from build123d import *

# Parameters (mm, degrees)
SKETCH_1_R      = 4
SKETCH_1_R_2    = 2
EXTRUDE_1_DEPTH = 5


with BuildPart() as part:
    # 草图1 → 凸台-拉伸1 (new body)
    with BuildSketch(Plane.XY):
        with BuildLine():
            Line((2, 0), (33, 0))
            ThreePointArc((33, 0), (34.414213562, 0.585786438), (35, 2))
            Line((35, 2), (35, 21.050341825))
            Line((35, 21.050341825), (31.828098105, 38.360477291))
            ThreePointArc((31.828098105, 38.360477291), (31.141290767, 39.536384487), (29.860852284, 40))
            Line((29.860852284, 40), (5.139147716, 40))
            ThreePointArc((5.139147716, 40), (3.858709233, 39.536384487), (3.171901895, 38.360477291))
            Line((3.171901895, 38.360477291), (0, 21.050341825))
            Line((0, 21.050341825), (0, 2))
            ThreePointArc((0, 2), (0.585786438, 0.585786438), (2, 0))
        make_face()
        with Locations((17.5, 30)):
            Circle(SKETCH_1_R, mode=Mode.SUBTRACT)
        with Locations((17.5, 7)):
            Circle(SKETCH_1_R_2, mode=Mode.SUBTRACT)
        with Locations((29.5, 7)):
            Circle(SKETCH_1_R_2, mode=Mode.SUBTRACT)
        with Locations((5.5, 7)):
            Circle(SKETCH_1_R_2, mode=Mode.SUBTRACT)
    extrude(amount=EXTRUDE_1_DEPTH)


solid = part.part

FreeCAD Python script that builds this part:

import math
import FreeCAD as App
import Part
import Sketcher

doc = App.newDocument("Part")
body = doc.addObject("PartDesign::Body", "Body")

sketch1 = body.newObject("Sketcher::SketchObject", "Sketch")
sketch1.AttachmentSupport = (doc.getObject("XY_Plane"), [""])
sketch1.MapMode = "FlatFace"
sketch1.addGeometry([
    Part.LineSegment(App.Vector(2, 0, 0), App.Vector(33, 0, 0)),
    Part.ArcOfCircle(Part.Circle(App.Vector(33, 2, 0), App.Vector(0, 0, 1), 2), math.radians(-90), math.radians(0)),
    Part.LineSegment(App.Vector(35, 2, 0), App.Vector(35, 21.050342, 0)),
    Part.LineSegment(App.Vector(35, 21.050342, 0), App.Vector(31.828098, 38.360477, 0)),
    Part.ArcOfCircle(Part.Circle(App.Vector(29.860852, 38, 0), App.Vector(0, 0, 1), 2), math.radians(10.38366), math.radians(90)),
    Part.LineSegment(App.Vector(29.860852, 40, 0), App.Vector(5.139148, 40, 0)),
    Part.ArcOfCircle(Part.Circle(App.Vector(5.139148, 38, 0), App.Vector(0, 0, 1), 2), math.radians(90), math.radians(169.61634)),
    Part.LineSegment(App.Vector(3.171902, 38.360477, 0), App.Vector(0, 21.050342, 0)),
    Part.LineSegment(App.Vector(0, 21.050342, 0), App.Vector(0, 2, 0)),
    Part.ArcOfCircle(Part.Circle(App.Vector(2, 2, 0), App.Vector(0, 0, 1), 2), math.radians(-180), math.radians(-90)),
    Part.Circle(App.Vector(5.5, 7, 0), App.Vector(0, 0, 1), 2),
    Part.Circle(App.Vector(17.5, 7, 0), App.Vector(0, 0, 1), 2),
    Part.Circle(App.Vector(29.5, 7, 0), App.Vector(0, 0, 1), 2),
    Part.Circle(App.Vector(17.5, 30, 0), App.Vector(0, 0, 1), 4),
], False)
sketch1.addConstraint([
    Sketcher.Constraint("Tangent", 0, 2, 1, 1),
    Sketcher.Constraint("Tangent", 1, 2, 2, 1),
    Sketcher.Constraint("Coincident", 2, 2, 3, 1),
    Sketcher.Constraint("Tangent", 3, 2, 4, 1),
    Sketcher.Constraint("Tangent", 4, 2, 5, 1),
    Sketcher.Constraint("Tangent", 5, 2, 6, 1),
    Sketcher.Constraint("Tangent", 6, 2, 7, 1),
    Sketcher.Constraint("Coincident", 7, 2, 8, 1),
    Sketcher.Constraint("Tangent", 8, 2, 9, 1),
    Sketcher.Constraint("Tangent", 9, 2, 0, 1),
    Sketcher.Constraint("Horizontal", 0),
    Sketcher.Constraint("Vertical", 2),
    Sketcher.Constraint("Horizontal", 5),
    Sketcher.Constraint("Vertical", 8),
    Sketcher.Constraint("Equal", 1, 4),
    Sketcher.Constraint("Equal", 4, 6),
    Sketcher.Constraint("Equal", 6, 9),
    Sketcher.Constraint("Equal", 9, 10),
    Sketcher.Constraint("Equal", 10, 11),
    Sketcher.Constraint("Equal", 11, 12),
    Sketcher.Constraint("PointOnObject", 0, 2, -1),
    Sketcher.Constraint("PointOnObject", 7, 2, -2),
    Sketcher.Constraint("Horizontal", 10, 3, 11, 3),
    Sketcher.Constraint("Horizontal", 11, 3, 12, 3),
    Sketcher.Constraint("Horizontal", 3, 2, 6, 2),
    Sketcher.Constraint("Horizontal", 2, 2, 7, 2),
    Sketcher.Constraint("Vertical", 11, 3, 13, 3),
    Sketcher.Constraint("Diameter", 10, 4.0),
    Sketcher.Constraint("Diameter", 13, 8.0),
    Sketcher.Constraint("DistanceX", 0, 1, 0, 2, 31.0),
    Sketcher.Constraint("DistanceY", -1, 1, 4, 3, 38.0),
    Sketcher.Constraint("DistanceY", -1, 1, 10, 3, 7.0),
    Sketcher.Constraint("DistanceY", -1, 1, 13, 3, 30.0),
    Sketcher.Constraint("DistanceX", 10, 3, 11, 3, 12.0),
    Sketcher.Constraint("DistanceX", 11, 3, 12, 3, 12.0),
    Sketcher.Constraint("DistanceX", -1, 1, 10, 3, 5.5),
    Sketcher.Constraint("DistanceY", 2, 1, 2, 2, 19.050342),
    Sketcher.Constraint("DistanceX", -1, 1, 3, 2, 31.828098),
])
pad1 = body.newObject("PartDesign::Pad", "Pad")
pad1.Profile = sketch1
pad1.Length = 5

doc.recompute()
